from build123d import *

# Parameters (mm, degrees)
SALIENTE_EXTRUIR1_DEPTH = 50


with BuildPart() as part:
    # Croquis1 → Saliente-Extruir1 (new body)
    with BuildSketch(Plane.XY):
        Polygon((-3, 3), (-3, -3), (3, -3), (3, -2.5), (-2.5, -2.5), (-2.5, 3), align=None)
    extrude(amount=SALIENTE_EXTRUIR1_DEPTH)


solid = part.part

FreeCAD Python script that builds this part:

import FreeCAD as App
import Part
import Sketcher

V = App.Vector


def add_polygon(sketch, points):
    """Adds a closed chain of lines whose ends are joined by coincident constraints."""
    first, n = sketch.GeometryCount, len(points)
    for a, b in zip(points, points[1:] + points[:1]):
        sketch.addGeometry(Part.LineSegment(App.Vector(*a, 0), App.Vector(*b, 0)), False)
    for i in range(n):
        sketch.addConstraint(Sketcher.Constraint("Coincident", first + i, 2, first + (i + 1) % n, 1))

doc = App.newDocument("Part")
body = doc.addObject("PartDesign::Body", "Body")

sketch1 = body.newObject("Sketcher::SketchObject", "Sketch")
sketch1.AttachmentSupport = (doc.getObject("XY_Plane"), [""])
sketch1.MapMode = "FlatFace"
add_polygon(sketch1, [(-3, 3), (-3, -3), (3, -3), (3, -2.5), (-2.5, -2.5), (-2.5, 3)])
sketch1.addConstraint([
    Sketcher.Constraint("Vertical", 0),
    Sketcher.Constraint("Horizontal", 1),
    Sketcher.Constraint("Vertical", 2),
    Sketcher.Constraint("Horizontal", 3),
    Sketcher.Constraint("Vertical", 4),
    Sketcher.Constraint("Horizontal", 5),
    Sketcher.Constraint("Symmetric", 1, 2, 5, 2, -1, 1),
    Sketcher.Constraint("Equal", 1, 0),
    Sketcher.Constraint("Equal", 5, 2),
    Sketcher.Constraint("DistanceX", 1, 1, 1, 2, 6.0),
    Sketcher.Constraint("DistanceX", 3, 2, 3, 1, 5.5),
])
pad1 = body.newObject("PartDesign::Pad", "Pad")
pad1.Profile = sketch1
pad1.Length = 50

doc.recompute()
